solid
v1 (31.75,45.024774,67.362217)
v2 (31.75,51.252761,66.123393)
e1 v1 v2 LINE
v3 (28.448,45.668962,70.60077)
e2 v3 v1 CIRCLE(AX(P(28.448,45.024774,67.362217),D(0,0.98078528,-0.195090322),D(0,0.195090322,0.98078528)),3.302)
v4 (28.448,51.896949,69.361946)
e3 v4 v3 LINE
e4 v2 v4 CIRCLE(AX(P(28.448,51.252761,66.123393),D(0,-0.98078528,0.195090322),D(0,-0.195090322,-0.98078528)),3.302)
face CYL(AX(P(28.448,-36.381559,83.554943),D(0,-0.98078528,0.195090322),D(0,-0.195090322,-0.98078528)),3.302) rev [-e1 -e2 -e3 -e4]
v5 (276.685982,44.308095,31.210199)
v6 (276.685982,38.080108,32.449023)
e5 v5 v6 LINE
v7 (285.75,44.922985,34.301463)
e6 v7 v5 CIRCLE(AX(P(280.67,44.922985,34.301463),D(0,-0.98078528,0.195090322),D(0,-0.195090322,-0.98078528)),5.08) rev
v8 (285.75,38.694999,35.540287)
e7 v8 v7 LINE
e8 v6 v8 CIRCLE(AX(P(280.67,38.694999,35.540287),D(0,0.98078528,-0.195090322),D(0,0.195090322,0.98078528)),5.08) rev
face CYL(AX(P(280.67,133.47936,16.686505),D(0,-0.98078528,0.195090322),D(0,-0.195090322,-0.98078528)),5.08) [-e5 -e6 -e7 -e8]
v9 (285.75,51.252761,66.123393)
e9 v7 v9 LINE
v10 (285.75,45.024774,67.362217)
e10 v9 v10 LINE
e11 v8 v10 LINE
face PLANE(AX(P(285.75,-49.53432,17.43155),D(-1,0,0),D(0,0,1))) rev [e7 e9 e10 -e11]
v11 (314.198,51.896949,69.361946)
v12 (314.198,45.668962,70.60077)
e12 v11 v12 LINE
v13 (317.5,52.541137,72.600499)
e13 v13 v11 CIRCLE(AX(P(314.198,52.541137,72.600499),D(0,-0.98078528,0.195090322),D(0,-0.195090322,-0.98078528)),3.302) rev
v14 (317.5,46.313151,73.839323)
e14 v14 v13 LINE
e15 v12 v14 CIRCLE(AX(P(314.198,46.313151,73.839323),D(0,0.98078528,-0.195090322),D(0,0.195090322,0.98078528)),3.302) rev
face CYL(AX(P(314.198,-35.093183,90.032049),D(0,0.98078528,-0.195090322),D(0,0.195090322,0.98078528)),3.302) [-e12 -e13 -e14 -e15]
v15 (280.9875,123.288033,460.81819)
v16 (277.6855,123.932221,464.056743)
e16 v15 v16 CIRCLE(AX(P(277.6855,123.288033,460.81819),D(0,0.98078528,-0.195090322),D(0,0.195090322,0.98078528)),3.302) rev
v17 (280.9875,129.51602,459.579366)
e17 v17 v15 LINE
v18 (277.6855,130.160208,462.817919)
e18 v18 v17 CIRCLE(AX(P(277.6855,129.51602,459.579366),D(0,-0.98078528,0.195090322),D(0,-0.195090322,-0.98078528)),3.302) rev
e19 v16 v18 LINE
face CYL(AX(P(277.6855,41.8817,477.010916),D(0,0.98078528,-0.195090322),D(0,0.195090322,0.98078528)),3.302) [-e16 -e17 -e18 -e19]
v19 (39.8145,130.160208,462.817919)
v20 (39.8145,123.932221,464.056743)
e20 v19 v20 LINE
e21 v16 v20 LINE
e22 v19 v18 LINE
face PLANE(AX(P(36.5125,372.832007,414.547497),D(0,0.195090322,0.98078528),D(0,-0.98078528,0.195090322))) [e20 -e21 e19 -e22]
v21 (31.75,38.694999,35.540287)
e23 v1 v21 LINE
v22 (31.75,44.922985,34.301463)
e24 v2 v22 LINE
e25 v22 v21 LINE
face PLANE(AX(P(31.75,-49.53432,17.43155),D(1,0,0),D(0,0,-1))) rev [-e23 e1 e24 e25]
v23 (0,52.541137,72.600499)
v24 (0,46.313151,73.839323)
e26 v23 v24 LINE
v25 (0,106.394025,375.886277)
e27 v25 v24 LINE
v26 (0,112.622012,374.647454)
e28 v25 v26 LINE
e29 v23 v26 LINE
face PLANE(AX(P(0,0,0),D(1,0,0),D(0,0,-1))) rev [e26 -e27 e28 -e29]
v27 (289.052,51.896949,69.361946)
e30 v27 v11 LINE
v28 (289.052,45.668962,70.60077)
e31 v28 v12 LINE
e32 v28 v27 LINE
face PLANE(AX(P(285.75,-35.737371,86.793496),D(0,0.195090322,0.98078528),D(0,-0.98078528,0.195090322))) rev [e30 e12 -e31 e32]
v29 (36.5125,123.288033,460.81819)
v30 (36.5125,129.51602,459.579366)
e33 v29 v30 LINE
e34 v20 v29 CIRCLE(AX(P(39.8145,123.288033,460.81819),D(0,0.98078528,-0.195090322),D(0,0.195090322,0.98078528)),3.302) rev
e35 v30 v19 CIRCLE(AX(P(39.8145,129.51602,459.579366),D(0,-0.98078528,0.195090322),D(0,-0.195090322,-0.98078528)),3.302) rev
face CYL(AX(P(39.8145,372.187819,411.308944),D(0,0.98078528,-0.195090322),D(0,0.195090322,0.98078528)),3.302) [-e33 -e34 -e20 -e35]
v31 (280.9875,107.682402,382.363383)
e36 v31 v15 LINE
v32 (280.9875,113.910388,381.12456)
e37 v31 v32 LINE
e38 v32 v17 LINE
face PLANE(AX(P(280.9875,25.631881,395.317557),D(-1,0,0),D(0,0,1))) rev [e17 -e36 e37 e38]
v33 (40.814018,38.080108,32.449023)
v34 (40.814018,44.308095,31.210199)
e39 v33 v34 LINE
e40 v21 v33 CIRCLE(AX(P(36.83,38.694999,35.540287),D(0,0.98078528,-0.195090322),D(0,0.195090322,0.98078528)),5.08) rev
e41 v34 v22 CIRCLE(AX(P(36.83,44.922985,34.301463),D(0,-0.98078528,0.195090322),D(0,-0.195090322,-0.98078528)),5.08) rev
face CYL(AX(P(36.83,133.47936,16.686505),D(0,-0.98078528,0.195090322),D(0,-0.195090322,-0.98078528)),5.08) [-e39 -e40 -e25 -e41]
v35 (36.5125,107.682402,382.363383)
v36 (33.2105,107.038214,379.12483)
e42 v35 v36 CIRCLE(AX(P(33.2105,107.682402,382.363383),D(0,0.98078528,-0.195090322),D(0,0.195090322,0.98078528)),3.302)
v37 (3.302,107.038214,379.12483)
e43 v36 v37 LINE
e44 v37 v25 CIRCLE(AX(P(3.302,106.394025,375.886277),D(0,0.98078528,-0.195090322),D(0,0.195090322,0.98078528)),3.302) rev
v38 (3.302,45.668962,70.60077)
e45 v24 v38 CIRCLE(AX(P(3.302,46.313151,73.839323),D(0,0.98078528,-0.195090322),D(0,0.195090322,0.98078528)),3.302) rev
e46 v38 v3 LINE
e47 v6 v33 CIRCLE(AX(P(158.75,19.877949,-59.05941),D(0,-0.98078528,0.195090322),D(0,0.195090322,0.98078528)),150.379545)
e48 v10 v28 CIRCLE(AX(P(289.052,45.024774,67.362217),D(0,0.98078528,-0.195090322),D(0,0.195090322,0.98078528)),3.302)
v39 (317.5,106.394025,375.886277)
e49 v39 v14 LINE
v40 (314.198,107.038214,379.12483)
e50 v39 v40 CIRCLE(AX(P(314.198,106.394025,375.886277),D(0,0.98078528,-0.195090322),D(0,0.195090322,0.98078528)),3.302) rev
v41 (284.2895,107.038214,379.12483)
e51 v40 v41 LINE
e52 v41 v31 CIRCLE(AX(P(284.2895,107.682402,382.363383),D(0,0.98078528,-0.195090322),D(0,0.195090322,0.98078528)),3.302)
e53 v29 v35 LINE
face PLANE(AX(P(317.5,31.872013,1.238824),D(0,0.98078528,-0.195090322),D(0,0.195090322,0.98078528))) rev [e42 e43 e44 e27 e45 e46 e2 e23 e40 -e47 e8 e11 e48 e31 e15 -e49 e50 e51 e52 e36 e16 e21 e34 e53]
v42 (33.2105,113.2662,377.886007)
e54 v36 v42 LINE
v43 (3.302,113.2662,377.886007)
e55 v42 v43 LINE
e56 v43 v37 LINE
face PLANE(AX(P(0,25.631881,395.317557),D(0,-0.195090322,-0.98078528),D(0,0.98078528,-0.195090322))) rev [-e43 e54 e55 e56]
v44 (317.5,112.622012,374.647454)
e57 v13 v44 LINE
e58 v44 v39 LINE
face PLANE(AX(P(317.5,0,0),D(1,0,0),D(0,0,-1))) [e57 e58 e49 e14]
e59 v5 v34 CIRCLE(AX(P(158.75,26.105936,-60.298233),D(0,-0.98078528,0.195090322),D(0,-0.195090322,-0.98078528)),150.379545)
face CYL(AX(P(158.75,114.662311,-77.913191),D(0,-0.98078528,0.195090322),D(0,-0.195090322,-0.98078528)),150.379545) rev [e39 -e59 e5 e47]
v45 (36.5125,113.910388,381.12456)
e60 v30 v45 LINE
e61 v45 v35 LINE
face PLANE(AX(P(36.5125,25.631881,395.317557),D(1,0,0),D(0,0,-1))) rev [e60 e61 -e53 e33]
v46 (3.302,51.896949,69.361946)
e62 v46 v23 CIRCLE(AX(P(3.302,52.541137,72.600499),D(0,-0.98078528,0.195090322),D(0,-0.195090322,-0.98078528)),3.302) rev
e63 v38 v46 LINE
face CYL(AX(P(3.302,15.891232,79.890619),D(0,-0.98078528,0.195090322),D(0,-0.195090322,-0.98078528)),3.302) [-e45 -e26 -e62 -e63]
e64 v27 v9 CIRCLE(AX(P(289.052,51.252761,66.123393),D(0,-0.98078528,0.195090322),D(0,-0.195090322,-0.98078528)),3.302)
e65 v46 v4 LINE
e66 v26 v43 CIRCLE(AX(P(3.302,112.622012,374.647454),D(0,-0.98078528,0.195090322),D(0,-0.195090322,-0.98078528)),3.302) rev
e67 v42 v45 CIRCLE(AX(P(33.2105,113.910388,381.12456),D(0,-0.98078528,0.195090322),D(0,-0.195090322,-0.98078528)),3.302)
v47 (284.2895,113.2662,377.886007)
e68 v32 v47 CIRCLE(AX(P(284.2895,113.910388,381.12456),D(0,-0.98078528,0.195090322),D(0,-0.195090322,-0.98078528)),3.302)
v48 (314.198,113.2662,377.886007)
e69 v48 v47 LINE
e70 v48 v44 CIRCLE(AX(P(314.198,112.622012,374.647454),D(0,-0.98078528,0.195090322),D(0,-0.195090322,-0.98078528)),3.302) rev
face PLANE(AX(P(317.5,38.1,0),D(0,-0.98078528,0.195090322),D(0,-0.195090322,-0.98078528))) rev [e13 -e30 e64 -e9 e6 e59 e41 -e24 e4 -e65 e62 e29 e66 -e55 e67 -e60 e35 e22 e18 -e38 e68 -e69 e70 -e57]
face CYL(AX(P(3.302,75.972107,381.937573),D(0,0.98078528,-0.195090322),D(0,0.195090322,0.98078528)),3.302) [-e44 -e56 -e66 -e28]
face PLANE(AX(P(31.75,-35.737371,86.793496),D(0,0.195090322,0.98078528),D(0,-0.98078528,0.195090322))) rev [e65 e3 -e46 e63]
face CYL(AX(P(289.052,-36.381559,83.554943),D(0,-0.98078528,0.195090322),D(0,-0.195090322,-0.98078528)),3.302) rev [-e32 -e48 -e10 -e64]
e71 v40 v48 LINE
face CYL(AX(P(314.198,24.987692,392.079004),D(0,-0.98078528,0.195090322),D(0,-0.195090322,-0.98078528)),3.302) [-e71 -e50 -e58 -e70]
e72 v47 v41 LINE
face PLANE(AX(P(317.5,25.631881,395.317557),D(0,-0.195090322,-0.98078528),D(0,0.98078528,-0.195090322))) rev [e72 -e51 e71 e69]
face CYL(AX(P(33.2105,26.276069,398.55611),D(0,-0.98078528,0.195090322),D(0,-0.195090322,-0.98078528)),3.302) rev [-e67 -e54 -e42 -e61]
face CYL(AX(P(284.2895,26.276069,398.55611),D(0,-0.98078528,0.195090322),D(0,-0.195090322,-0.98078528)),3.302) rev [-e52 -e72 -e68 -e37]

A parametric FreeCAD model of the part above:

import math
import FreeCAD as App
import Part
import Sketcher
from FreeCAD import Vector
Q = App.Units.Quantity


def edges_at(feature, points):
    """Names of the edges that pass closest to the given points."""
    edges = feature.Shape.Edges
    near = lambda p: min(range(len(edges)), key=lambda i: edges[i].distToShape(Part.Vertex(*p))[0])
    return sorted({f"Edge{near(p) + 1}" for p in points})


def add_polygon(sketch, points):
    """Adds a closed chain of lines whose ends are joined by coincident constraints."""
    first, n = sketch.GeometryCount, len(points)
    for a, b in zip(points, points[1:] + points[:1]):
        sketch.addGeometry(Part.LineSegment(App.Vector(*a, 0), App.Vector(*b, 0)), False)
    for i in range(n):
        sketch.addConstraint(Sketcher.Constraint("Coincident", first + i, 2, first + (i + 1) % n, 1))

doc = App.newDocument("Part")
body = doc.addObject("PartDesign::Body", "Body")

sketch1 = doc.addObject("Sketcher::SketchObject", "Sketch")
body.addObject(sketch1)
sketch1.AttachmentSupport = (doc.YZ_Plane, [""])
sketch1.MapMode = "FlatFace"
add_polygon(sketch1, [(32, 1), (38, 0), (123, 425), (116, 427)])
sketch1.addConstraint([
    Sketcher.Constraint("PointOnObject", 0, 2, -1),
    Sketcher.Constraint("Perpendicular", 0, 1),
    Sketcher.Constraint("Perpendicular", 1, 2),
    Sketcher.Constraint("Perpendicular", 2, 3),
    Sketcher.Constraint("DistanceX", -1, 1, 0, 2, Q("1.5 in")),
    Sketcher.Constraint("Distance", 0, Q("0.25 in")),
    Sketcher.Constraint("DistanceY", -1, 1, 1, 2, Q("16.75 in")),
    Sketcher.Constraint("Angle", 0, Q("-11.25 deg")),
])
pad1 = doc.addObject("PartDesign::Pad", "Pad")
body.addObject(pad1)
pad1.Profile = sketch1
pad1.Length = Q("12.5 in")

sketch2 = doc.addObject("Sketcher::SketchObject", "Sketch001")
body.addObject(sketch2)
sketch2.Placement = App.Placement(Vector(0, 36.649905, -7.290119), App.Rotation(Vector(1, 0, 0), Vector(0, -0.195090322, -0.98078528), Vector(0, 0.98078528, -0.195090322), "ZXY"))
add_polygon(sketch2, [(0, -7), (0, -78), (32, -78), (32, -7)])
add_polygon(sketch2, [(0, -393), (0, -441), (37, -441), (37, -393)])
add_polygon(sketch2, [(286, -7), (286, -78), (318, -78), (318, -7)])
add_polygon(sketch2, [(281, -393), (281, -441), (318, -441), (318, -393)])
sketch2.addConstraint([
    Sketcher.Constraint("Vertical", 0),
    Sketcher.Constraint("Horizontal", 1),
    Sketcher.Constraint("Vertical", 2),
    Sketcher.Constraint("Horizontal", 3),
    Sketcher.Constraint("Vertical", 4),
    Sketcher.Constraint("Horizontal", 5),
    Sketcher.Constraint("Vertical", 6),
    Sketcher.Constraint("Horizontal", 7),
    Sketcher.Constraint("Vertical", 8),
    Sketcher.Constraint("Horizontal", 9),
    Sketcher.Constraint("Vertical", 10),
    Sketcher.Constraint("Horizontal", 11),
    Sketcher.Constraint("Vertical", 12),
    Sketcher.Constraint("Horizontal", 13),
    Sketcher.Constraint("Vertical", 14),
    Sketcher.Constraint("Horizontal", 15),
    Sketcher.Constraint("PointOnObject", 0, 2, -2),
    Sketcher.Constraint("PointOnObject", 4, 2, -2),
    Sketcher.Constraint("Horizontal", 1, 2, 8, 2),
    Sketcher.Constraint("Horizontal", 3, 2, 10, 2),
    Sketcher.Constraint("Horizontal", 5, 2, 12, 2),
    Sketcher.Constraint("Horizontal", 7, 2, 14, 2),
    Sketcher.Constraint("Vertical", 10, 2, 13, 2),
    Sketcher.Constraint("Equal", 3, 9),
    Sketcher.Constraint("Equal", 7, 13),
    Sketcher.Constraint("DistanceX", 1, 2, 8, 2, Q("10 in")),
    Sketcher.Constraint("DistanceX", 1, 1, 1, 2, Q("1.25 in")),
    Sketcher.Constraint("DistanceX", 5, 1, 5, 2, Q("1.4375 in")),
    Sketcher.Constraint("DistanceY", 4, 2, -1, 1, 441.217999),
    Sketcher.Constraint("DistanceY", 0, 2, 0, 1, 70.720827),
    Sketcher.Constraint("DistanceY", 4, 2, 4, 1, 48.495827),
    Sketcher.Constraint("DistanceY", 0, 2, -1, 1, 78.153768),
])
pocket1 = doc.addObject("PartDesign::Pocket", "Pocket")
body.addObject(pocket1)
pocket1.Profile = sketch2
pocket1.Type = "ThroughAll"

sketch3 = doc.addObject("Sketcher::SketchObject", "Sketch002")
body.addObject(sketch3)
sketch3.Placement = App.Placement(Vector(0, 30.421919, -6.051296), App.Rotation(Vector(1, 0, 0), Vector(0, 0.195090322, 0.98078528), Vector(0, -0.98078528, 0.195090322), "ZXY"))
add_polygon(sketch3, [(37, 479), (37, 441), (281, 441), (281, 479)])
sketch3.addConstraint([
    Sketcher.Constraint("Vertical", 0),
    Sketcher.Constraint("Horizontal", 1),
    Sketcher.Constraint("Vertical", 2),
    Sketcher.Constraint("Horizontal", 3),
    Sketcher.Constraint("DistanceY", 0, 2, 0, 1, Q("1.5 in")),
    Sketcher.Constraint("DistanceX", 1, 1, 1, 2, Q("9.625 in")),
    Sketcher.Constraint("DistanceX", -1, 1, 0, 2, Q("1.4375 in")),
    Sketcher.Constraint("DistanceY", -1, 1, 0, 2, 441.217999),
])
pad2 = doc.addObject("PartDesign::Pad", "Pad001")
body.addObject(pad2)
pad2.Profile = sketch3
pad2.Length = Q("0.25 in")
pad2.Reversed = True

sketch4 = doc.addObject("Sketcher::SketchObject", "Sketch003")
body.addObject(sketch4)
sketch4.Placement = App.Placement(Vector(0, 30.421919, -6.051296), App.Rotation(Vector(1, 0, 0), Vector(0, 0.195090322, 0.98078528), Vector(0, -0.98078528, 0.195090322), "ZXY"))
sketch4.addGeometry([
    Part.LineSegment(Vector(32, 26, 0), Vector(32, 7, 0)),
    Part.LineSegment(Vector(32, 7, 0), Vector(286, 7, 0)),
    Part.LineSegment(Vector(286, 7, 0), Vector(286, 26, 0)),
    Part.ArcOfCircle(Part.Circle(Vector(159, -54, 0), Vector(0, 0, 1), 150), math.radians(32), math.radians(148)),
], False)
sketch4.addConstraint([
    Sketcher.Constraint("Coincident", 0, 2, 1, 1),
    Sketcher.Constraint("Coincident", 1, 2, 2, 1),
    Sketcher.Constraint("Coincident", 2, 2, 3, 1),
    Sketcher.Constraint("Coincident", 3, 2, 0, 1),
    Sketcher.Constraint("Vertical", 0),
    Sketcher.Constraint("Horizontal", 1),
    Sketcher.Constraint("Vertical", 2),
    Sketcher.Constraint("Horizontal", 2, 2, 3, 2),
    Sketcher.Constraint("DistanceX", 1, 1, 1, 2, Q("10 in")),
    Sketcher.Constraint("DistanceY", 0, 2, 0, 1, Q("0.75 in")),
    Sketcher.Constraint("DistanceX", -1, 1, 3, 3, Q("6.25 in")),
    Sketcher.Constraint("Radius", 3, 150.379545),
    Sketcher.Constraint("DistanceY", -1, 1, 0, 2, 7.432941),
])
pocket2 = doc.addObject("PartDesign::Pocket", "Pocket001")
body.addObject(pocket2)
pocket2.Profile = sketch4
pocket2.Type = "ThroughAll"
doc.recompute()

fillet = doc.addObject("PartDesign::Fillet", "Fillet")
body.addObject(fillet)
fillet.Base = (pocket2, edges_at(pocket2, [(285.75, 38.702, 19.303), (31.75, 38.702, 19.303)]))
fillet.Radius = Q("0.2 in")
doc.recompute()

fillet2 = doc.addObject("PartDesign::Fillet", "Fillet001")
body.addObject(fillet2)
fillet2.Base = (fillet, edges_at(fillet, [
    (0, 48.783, 69.981),
    (0, 110.152, 378.505),
    (317.5, 110.152, 378.505),
    (317.5, 48.783, 69.981),
    (36.513, 110.152, 378.505),
    (285.75, 48.783, 69.981),
    (280.988, 110.152, 378.505),
    (31.75, 48.783, 69.981),
    (36.513, 127.046, 463.437),
    (280.988, 127.046, 463.437),
]))
fillet2.Radius = Q("0.13 in")

doc.recompute()
